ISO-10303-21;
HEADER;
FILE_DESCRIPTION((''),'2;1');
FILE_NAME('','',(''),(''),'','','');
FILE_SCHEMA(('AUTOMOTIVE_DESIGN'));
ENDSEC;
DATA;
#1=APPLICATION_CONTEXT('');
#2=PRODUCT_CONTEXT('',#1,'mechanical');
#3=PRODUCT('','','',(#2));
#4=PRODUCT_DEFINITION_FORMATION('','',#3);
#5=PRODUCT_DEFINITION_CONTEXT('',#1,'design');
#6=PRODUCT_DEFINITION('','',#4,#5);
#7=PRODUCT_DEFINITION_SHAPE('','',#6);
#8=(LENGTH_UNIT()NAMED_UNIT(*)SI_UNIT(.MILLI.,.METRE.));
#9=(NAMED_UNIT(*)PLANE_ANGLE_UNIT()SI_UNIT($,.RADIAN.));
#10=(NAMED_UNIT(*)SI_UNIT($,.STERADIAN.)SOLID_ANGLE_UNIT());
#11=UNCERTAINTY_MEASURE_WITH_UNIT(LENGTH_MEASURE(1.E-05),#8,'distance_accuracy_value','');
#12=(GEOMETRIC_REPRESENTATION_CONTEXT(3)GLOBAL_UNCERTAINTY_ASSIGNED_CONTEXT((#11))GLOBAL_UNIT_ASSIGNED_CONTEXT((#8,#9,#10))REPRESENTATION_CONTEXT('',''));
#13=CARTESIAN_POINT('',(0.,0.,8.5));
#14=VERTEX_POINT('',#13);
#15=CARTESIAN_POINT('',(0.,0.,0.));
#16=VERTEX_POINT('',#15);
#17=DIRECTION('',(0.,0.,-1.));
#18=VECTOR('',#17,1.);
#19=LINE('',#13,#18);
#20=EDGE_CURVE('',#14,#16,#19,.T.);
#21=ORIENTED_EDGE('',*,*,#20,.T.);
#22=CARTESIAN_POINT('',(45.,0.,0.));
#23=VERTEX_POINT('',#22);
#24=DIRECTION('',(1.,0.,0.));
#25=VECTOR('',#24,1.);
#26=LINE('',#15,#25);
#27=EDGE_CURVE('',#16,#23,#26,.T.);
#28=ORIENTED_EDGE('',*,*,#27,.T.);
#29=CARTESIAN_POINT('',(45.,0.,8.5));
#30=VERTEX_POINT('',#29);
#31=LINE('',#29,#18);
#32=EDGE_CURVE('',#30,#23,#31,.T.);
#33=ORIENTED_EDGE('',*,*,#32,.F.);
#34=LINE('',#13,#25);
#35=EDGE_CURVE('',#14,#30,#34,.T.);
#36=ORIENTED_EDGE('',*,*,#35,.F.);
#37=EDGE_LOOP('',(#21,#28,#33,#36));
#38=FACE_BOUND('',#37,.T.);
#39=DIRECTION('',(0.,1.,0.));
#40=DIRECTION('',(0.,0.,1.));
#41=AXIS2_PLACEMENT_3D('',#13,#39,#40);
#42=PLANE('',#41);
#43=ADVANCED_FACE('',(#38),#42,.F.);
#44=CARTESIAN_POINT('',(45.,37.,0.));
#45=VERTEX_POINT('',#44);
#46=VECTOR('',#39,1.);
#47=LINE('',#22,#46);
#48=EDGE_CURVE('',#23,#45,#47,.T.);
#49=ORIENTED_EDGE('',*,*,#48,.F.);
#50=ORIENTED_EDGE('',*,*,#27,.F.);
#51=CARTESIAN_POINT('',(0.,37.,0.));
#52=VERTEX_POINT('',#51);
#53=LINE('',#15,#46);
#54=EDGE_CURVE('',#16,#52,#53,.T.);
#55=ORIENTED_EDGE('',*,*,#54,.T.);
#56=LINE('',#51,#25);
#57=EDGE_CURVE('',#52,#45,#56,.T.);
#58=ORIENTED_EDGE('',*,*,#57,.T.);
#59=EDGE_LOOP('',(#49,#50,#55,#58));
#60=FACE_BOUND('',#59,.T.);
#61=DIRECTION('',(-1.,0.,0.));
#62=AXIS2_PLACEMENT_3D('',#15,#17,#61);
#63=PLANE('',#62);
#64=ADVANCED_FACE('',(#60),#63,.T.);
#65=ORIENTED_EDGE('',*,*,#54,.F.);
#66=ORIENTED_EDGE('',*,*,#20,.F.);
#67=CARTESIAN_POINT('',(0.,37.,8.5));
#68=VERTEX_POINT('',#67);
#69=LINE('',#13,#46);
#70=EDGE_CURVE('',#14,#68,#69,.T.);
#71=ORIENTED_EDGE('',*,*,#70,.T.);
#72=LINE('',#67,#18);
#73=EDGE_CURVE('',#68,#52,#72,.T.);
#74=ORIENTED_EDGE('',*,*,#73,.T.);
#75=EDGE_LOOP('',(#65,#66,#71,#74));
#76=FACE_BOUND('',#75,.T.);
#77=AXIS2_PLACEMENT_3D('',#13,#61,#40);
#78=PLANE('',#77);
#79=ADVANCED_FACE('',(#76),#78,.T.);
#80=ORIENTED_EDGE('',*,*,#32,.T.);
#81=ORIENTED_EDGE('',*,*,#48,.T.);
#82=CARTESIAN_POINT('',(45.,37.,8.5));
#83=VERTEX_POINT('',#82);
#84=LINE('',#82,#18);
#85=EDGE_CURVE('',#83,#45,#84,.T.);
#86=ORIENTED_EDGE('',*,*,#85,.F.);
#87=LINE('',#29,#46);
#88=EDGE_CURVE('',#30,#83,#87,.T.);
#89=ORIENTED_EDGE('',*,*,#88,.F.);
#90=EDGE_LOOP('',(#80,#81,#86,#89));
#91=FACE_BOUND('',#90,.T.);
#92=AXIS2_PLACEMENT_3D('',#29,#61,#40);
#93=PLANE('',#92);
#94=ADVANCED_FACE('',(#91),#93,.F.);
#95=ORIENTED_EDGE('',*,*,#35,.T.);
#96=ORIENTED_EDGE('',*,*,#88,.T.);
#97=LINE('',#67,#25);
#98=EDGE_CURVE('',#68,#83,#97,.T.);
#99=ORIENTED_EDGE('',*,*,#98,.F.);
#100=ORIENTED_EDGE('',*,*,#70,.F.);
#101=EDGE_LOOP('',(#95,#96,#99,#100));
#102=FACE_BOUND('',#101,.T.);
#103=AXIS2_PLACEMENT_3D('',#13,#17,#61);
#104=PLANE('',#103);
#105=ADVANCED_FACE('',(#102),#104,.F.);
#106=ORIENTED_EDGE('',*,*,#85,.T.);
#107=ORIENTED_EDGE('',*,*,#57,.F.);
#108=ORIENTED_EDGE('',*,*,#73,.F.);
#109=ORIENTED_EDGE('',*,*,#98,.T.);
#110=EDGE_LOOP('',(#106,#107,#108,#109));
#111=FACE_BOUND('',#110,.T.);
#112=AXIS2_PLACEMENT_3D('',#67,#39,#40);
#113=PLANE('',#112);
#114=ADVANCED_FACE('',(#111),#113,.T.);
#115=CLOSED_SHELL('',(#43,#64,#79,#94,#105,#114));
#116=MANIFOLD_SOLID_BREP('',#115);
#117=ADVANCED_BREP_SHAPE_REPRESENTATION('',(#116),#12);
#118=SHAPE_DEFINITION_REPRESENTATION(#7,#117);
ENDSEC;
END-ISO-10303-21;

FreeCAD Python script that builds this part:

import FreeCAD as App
import Part
import Sketcher
from FreeCAD import Vector


def add_polygon(sketch, points):
    """Adds a closed chain of lines whose ends are joined by coincident constraints."""
    first, n = sketch.GeometryCount, len(points)
    for a, b in zip(points, points[1:] + points[:1]):
        sketch.addGeometry(Part.LineSegment(App.Vector(*a, 0), App.Vector(*b, 0)), False)
    for i in range(n):
        sketch.addConstraint(Sketcher.Constraint("Coincident", first + i, 2, first + (i + 1) % n, 1))

doc = App.newDocument("Part")
body = doc.addObject("PartDesign::Body", "Body")

# Sketch on XY plane
sketch1 = body.newObject("Sketcher::SketchObject", "Sketch")
sketch1.AttachmentSupport = (doc.getObject("XY_Plane"), [""])
sketch1.MapMode = "FlatFace"
add_polygon(sketch1, [(0, 37), (0, 0), (45, 0), (45, 37)])  # lines 0-3
sketch1.addConstraint([
    Sketcher.Constraint("Vertical", 0),
    Sketcher.Constraint("Horizontal", 1),
    Sketcher.Constraint("Vertical", 2),
    Sketcher.Constraint("Horizontal", 3),
    Sketcher.Constraint("Coincident", 0, 2, -1, 1),
    Sketcher.Constraint("DistanceX", 1, 1, 1, 2, 45.0),
    Sketcher.Constraint("DistanceY", 0, 2, 0, 1, 37.0),
])
pad1 = body.newObject("PartDesign::Pad", "Pad")
pad1.Profile = sketch1
pad1.Length = 8.5

doc.recompute()
